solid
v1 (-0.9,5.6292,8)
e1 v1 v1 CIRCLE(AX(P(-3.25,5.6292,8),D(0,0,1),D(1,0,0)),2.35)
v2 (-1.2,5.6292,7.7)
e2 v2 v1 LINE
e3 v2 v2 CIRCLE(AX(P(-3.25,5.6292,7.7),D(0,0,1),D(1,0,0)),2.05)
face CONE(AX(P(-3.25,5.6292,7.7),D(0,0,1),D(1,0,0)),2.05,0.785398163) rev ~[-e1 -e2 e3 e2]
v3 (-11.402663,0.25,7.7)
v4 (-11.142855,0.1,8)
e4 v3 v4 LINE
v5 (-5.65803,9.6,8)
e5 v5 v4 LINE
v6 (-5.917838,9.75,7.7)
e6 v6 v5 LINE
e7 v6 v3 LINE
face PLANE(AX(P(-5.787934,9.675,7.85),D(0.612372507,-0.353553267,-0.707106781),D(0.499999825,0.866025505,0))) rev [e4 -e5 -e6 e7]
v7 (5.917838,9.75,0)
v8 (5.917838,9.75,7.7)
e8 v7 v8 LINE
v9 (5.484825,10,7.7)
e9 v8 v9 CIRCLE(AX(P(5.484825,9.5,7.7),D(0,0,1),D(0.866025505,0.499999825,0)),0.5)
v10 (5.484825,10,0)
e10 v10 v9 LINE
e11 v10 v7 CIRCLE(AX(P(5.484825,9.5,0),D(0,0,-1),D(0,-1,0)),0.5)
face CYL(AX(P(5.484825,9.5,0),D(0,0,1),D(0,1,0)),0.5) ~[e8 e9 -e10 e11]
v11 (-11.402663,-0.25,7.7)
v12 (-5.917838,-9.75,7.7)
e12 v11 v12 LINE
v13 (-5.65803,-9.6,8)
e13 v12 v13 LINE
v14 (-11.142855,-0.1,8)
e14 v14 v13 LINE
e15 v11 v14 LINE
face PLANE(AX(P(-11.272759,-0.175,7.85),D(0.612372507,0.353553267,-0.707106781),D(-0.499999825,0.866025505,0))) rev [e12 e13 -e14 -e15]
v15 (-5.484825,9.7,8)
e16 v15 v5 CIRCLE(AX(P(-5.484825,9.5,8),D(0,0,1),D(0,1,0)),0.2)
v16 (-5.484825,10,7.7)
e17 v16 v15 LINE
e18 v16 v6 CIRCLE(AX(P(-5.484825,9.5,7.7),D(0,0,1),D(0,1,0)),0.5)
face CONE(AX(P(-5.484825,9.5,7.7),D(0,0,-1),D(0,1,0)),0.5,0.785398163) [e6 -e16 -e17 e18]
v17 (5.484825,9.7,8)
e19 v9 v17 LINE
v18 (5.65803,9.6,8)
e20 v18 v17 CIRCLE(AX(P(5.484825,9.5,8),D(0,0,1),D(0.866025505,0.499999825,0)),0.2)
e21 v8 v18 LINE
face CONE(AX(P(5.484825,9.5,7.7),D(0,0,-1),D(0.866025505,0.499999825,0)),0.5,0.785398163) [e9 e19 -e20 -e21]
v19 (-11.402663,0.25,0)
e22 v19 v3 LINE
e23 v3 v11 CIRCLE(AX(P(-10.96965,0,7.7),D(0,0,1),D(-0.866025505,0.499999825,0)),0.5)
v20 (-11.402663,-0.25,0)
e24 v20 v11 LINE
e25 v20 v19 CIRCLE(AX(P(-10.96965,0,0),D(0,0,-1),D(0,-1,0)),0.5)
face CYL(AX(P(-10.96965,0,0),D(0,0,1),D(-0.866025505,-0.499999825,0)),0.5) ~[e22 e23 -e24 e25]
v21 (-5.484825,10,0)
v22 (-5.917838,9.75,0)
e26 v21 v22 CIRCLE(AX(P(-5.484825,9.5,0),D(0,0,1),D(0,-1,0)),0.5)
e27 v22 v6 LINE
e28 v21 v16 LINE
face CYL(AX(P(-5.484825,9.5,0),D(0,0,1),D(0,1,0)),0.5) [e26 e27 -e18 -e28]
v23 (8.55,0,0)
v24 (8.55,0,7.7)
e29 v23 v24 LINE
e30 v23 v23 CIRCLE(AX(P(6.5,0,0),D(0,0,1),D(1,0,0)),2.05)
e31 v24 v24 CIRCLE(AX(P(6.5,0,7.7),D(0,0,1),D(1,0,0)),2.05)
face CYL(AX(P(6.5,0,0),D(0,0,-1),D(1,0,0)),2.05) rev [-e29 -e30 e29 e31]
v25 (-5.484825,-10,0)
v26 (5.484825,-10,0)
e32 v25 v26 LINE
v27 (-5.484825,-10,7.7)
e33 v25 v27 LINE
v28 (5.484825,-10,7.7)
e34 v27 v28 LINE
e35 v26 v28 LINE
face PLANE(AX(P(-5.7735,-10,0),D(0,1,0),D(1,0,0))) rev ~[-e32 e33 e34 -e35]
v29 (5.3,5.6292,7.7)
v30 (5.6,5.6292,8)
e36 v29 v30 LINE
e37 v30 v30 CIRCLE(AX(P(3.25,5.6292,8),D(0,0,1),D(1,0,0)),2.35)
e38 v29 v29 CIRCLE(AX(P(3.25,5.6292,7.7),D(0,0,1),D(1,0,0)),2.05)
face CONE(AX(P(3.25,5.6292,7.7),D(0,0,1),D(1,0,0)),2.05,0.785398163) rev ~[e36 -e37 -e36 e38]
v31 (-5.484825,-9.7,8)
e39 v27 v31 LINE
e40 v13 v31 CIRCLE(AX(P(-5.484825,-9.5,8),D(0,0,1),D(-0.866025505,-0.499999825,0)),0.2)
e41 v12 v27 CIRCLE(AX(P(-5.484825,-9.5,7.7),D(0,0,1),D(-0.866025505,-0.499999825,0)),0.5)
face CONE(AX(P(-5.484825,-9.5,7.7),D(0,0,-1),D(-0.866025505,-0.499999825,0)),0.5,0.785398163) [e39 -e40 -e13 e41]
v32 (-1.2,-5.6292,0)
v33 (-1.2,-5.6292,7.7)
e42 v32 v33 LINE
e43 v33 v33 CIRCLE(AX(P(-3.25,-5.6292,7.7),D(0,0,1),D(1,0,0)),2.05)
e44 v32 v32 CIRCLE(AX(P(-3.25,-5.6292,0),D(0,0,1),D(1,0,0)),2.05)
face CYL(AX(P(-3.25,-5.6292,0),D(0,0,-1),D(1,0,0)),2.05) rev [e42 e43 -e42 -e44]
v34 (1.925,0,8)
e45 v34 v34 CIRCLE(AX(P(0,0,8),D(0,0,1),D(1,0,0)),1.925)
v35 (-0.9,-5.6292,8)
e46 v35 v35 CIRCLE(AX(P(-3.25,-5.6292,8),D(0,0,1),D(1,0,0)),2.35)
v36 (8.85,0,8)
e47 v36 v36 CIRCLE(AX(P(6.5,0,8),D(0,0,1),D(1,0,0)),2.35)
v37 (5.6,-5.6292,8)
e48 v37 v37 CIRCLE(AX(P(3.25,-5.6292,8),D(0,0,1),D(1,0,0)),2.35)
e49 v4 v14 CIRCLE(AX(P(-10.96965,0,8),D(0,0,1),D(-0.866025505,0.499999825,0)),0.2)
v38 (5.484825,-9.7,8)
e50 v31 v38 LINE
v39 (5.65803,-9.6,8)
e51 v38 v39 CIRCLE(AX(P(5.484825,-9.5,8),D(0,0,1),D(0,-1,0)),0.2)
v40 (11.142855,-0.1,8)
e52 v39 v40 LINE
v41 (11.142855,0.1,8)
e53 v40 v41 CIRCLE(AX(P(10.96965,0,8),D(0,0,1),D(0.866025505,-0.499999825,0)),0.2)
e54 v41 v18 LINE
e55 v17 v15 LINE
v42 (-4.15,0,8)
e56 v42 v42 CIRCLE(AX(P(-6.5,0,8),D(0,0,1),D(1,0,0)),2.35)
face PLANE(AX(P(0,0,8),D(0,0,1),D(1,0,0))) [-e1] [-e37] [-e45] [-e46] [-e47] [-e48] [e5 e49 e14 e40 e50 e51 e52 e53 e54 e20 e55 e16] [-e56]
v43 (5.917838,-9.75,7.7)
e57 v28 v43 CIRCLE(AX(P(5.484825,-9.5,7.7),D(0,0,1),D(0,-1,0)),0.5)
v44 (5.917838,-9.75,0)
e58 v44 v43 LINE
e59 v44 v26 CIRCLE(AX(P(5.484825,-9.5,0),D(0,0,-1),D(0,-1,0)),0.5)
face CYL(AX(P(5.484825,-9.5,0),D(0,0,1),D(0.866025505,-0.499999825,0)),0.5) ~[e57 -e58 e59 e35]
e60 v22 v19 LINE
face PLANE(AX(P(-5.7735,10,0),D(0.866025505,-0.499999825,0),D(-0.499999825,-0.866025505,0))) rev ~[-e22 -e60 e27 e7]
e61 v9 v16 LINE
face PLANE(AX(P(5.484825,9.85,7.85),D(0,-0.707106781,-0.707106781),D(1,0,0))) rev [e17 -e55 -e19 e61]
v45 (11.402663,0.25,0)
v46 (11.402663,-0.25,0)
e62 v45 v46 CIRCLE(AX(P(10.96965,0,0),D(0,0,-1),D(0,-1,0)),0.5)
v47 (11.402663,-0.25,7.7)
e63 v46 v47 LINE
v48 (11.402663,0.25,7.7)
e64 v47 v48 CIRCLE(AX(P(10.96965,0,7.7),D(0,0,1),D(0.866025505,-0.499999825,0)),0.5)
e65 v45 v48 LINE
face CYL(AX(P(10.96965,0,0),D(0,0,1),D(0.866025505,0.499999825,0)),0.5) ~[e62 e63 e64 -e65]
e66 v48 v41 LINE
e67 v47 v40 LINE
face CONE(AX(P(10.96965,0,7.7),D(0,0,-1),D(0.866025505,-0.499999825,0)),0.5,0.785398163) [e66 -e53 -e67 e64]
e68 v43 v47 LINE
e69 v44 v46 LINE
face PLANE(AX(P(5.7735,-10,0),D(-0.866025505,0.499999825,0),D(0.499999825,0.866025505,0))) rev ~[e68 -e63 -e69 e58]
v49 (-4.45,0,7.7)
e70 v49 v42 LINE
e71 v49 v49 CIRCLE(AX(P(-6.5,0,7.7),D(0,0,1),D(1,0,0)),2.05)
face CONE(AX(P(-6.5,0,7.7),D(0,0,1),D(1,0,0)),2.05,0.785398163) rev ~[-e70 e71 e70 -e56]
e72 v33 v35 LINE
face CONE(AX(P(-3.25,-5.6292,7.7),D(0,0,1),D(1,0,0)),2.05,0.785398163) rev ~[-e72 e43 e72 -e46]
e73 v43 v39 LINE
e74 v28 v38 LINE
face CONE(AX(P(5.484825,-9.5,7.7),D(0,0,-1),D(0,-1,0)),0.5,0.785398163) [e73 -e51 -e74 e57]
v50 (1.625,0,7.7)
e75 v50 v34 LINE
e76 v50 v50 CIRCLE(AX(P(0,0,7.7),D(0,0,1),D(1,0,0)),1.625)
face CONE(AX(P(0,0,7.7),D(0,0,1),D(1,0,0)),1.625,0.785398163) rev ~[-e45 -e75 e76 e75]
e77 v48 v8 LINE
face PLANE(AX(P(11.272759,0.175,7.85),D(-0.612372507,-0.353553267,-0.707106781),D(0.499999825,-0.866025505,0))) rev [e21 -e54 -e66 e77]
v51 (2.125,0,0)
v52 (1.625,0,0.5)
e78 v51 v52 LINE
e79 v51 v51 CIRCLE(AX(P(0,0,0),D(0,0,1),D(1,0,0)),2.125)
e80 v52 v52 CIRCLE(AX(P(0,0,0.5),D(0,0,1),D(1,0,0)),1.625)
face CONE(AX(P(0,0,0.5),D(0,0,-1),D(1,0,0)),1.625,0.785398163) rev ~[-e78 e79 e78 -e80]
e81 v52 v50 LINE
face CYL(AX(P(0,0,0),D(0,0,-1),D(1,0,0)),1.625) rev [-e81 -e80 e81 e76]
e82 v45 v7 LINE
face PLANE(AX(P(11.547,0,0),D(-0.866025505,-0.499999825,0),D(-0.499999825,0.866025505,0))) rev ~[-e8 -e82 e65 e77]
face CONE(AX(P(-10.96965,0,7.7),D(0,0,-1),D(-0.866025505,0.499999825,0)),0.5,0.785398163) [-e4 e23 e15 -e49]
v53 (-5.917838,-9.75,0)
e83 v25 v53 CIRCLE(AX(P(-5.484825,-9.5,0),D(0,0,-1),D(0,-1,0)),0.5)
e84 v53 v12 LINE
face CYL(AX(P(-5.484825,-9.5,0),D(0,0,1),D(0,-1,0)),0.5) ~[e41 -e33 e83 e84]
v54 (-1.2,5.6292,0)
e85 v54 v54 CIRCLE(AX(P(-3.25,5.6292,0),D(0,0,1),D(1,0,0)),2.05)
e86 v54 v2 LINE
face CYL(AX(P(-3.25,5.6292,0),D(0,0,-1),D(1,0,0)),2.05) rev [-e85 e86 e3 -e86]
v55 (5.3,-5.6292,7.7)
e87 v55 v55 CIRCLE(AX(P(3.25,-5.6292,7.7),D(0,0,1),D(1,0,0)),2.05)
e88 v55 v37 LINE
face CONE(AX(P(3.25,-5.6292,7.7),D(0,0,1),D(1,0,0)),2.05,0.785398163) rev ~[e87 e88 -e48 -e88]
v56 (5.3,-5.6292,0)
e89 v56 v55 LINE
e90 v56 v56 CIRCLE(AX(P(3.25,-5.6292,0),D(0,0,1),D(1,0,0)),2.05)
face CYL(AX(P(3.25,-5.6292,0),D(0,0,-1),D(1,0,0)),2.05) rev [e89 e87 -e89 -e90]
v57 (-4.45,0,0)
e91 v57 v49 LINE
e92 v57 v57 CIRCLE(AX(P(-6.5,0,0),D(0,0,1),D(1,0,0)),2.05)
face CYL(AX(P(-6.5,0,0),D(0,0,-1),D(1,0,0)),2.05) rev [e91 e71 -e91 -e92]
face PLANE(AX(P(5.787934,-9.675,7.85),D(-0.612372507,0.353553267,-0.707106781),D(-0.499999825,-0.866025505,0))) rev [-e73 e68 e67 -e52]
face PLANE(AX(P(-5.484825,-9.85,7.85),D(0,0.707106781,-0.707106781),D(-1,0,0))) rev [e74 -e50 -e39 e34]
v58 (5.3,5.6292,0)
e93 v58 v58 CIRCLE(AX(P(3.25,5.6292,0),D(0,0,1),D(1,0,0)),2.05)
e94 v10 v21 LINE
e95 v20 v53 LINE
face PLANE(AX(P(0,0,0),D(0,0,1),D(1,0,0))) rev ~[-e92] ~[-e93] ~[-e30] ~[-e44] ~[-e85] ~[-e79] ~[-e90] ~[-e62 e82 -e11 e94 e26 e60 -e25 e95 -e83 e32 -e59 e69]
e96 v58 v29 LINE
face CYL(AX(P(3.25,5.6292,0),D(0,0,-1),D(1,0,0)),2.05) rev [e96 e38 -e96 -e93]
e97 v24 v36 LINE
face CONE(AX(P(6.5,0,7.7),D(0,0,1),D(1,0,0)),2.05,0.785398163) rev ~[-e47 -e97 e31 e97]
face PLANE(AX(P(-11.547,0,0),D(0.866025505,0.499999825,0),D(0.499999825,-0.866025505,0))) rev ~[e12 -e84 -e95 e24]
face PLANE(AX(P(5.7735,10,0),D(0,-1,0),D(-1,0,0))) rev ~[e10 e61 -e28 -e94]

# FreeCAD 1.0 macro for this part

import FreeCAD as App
import Part
import Sketcher
from FreeCAD import Vector
Q = App.Units.Quantity


def edges_at(feature, points):
    """Names of the edges that pass closest to the given points."""
    edges = feature.Shape.Edges
    near = lambda p: min(range(len(edges)), key=lambda i: edges[i].distToShape(Part.Vertex(*p))[0])
    return sorted({f"Edge{near(p) + 1}" for p in points})


def add_polygon(sketch, points):
    """Adds a closed chain of lines whose ends are joined by coincident constraints."""
    first, n = sketch.GeometryCount, len(points)
    for a, b in zip(points, points[1:] + points[:1]):
        sketch.addGeometry(Part.LineSegment(App.Vector(*a, 0), App.Vector(*b, 0)), False)
    for i in range(n):
        sketch.addConstraint(Sketcher.Constraint("Coincident", first + i, 2, first + (i + 1) % n, 1))

doc = App.newDocument("Part")
params = doc.addObject("Spreadsheet::Sheet", "Params")
for row, (alias, value) in enumerate([
    ("sketch1_diameter", "4.1 mm"),
    ("sketch1_diameter2", "3.25 mm"),
    ("pad1_length", "8 mm"),
    ("chamfer_size", "0.3 mm"),
    ("chamfer2_size", "0.5 mm"),
    ("fillet_radius", "0.5 mm"),
    ("chamfer3_size", "0.3 mm"),
], start=1):
    params.set(f"A{row}", alias)
    params.set(f"B{row}", "=" + value)
    params.setAlias(f"B{row}", alias)

body = doc.addObject("PartDesign::Body", "Body")

sketch1 = body.newObject("Sketcher::SketchObject", "Sketch")
sketch1.AttachmentSupport = (doc.getObject("XY_Plane"), [""])
sketch1.MapMode = "FlatFace"
add_polygon(sketch1, [(5.8, 10), (-5.8, 10), (-11.5, 0), (-5.8, -10), (5.8, -10), (11.5, 0)])
sketch1.addGeometry(Part.Circle(Vector(-3.2, -5.6, 0), Vector(0, 0, 1), 2), False)
sketch1.addGeometry(Part.Circle(Vector(3.2, -5.6, 0), Vector(0, 0, 1), 2), False)
sketch1.addGeometry(Part.Circle(Vector(-6.5, 0, 0), Vector(0, 0, 1), 2), False)
sketch1.addGeometry(Part.Circle(Vector(-3.2, 5.6, 0), Vector(0, 0, 1), 2), False)
sketch1.addGeometry(Part.Circle(Vector(0, 0, 0), Vector(0, 0, 1), 1.6), False)
sketch1.addGeometry(Part.Circle(Vector(6.5, 0, 0), Vector(0, 0, 1), 2), False)
sketch1.addGeometry(Part.Circle(Vector(3.2, 5.6, 0), Vector(0, 0, 1), 2), False)
sketch1.addConstraint([
    Sketcher.Constraint("Horizontal", 0),
    Sketcher.Constraint("Horizontal", 3),
    Sketcher.Constraint("Coincident", 10, 3, -1, 1),
    Sketcher.Constraint("Equal", 6, 7),
    Sketcher.Constraint("Equal", 7, 8),
    Sketcher.Constraint("Equal", 8, 9),
    Sketcher.Constraint("Equal", 9, 11),
    Sketcher.Constraint("Equal", 11, 12),
    Sketcher.Constraint("Symmetric", 7, 3, 9, 3, -1, 1),
    Sketcher.Constraint("Symmetric", 8, 3, 11, 3, -1, 1),
    Sketcher.Constraint("Symmetric", 6, 3, 12, 3, -1, 1),
    Sketcher.Constraint("Symmetric", 0, 2, 3, 2, -1, 1),
    Sketcher.Constraint("Symmetric", 1, 2, 4, 2, -1, 1),
    Sketcher.Constraint("Symmetric", 6, 3, 7, 3, -2),
    Sketcher.Constraint("PointOnObject", 8, 3, -1),
    Sketcher.Constraint("PointOnObject", 1, 2, -1),
    Sketcher.Constraint("Parallel", 2, 5),
    Sketcher.Constraint("Vertical", 0, 2, 2, 2),
    Sketcher.Constraint("Diameter", 6, 4.1),
    Sketcher.Constraint("Diameter", 10, 3.25),
    Sketcher.Constraint("DistanceY", -1, 1, 0, 2, 10.0),
    Sketcher.Constraint("DistanceX", 8, 3, 11, 3, 13.0),
    Sketcher.Constraint("DistanceX", 6, 3, -1, 1, 3.25),
    Sketcher.Constraint("Angle", 1, Q("-120 deg")),
    Sketcher.Constraint("DistanceX", 0, 2, 0, 1, 11.547),
    Sketcher.Constraint("DistanceY", 6, 3, -1, 1, 5.6292),
])
sketch1.setExpression("Constraints[24]", "Params.sketch1_diameter")
sketch1.setExpression("Constraints[25]", "Params.sketch1_diameter2")
pad1 = body.newObject("PartDesign::Pad", "Pad")
pad1.Profile = sketch1
pad1.setExpression("Length", "Params.pad1_length")
doc.recompute()

chamfer = body.newObject("PartDesign::Chamfer", "Chamfer")
chamfer.Base = (pad1, edges_at(pad1, [
    (-8.411, 0.741, 8),
    (-5.161, 6.37, 8),
    (-1.515, 0.588, 8),
    (-5.161, -4.888, 8),
    (1.339, -4.888, 8),
    (4.589, 0.741, 8),
    (1.339, 6.37, 8),
]))
chamfer.setExpression("Size", "Params.chamfer_size")
doc.recompute()

chamfer2 = body.newObject("PartDesign::Chamfer", "Chamfer001")
chamfer2.Base = (chamfer, edges_at(chamfer, [(-1.515, 0.588, 0)]))
chamfer2.setExpression("Size", "Params.chamfer2_size")
doc.recompute()

fillet = body.newObject("PartDesign::Fillet", "Fillet")
fillet.Base = (chamfer2, edges_at(chamfer2, [
    (-5.774, -10, 4),
    (5.774, -10, 4),
    (11.547, 0, 4),
    (5.774, 10, 4),
    (-5.774, 10, 4),
    (-11.547, 0, 4),
]))
fillet.setExpression("Radius", "Params.fillet_radius")
doc.recompute()

chamfer3 = body.newObject("PartDesign::Chamfer", "Chamfer002")
chamfer3.Base = (fillet, edges_at(fillet, [
    (0, -10, 8),
    (5.735, -9.933, 8),
    (8.66, -5, 8),
    (11.47, 0, 8),
    (8.66, 5, 8),
    (5.735, 9.933, 8),
    (0, 10, 8),
    (-5.735, 9.933, 8),
    (-8.66, 5, 8),
    (-11.47, 0, 8),
    (-8.66, -5, 8),
    (-5.735, -9.933, 8),
]))
chamfer3.setExpression("Size", "Params.chamfer3_size")

doc.recompute()
